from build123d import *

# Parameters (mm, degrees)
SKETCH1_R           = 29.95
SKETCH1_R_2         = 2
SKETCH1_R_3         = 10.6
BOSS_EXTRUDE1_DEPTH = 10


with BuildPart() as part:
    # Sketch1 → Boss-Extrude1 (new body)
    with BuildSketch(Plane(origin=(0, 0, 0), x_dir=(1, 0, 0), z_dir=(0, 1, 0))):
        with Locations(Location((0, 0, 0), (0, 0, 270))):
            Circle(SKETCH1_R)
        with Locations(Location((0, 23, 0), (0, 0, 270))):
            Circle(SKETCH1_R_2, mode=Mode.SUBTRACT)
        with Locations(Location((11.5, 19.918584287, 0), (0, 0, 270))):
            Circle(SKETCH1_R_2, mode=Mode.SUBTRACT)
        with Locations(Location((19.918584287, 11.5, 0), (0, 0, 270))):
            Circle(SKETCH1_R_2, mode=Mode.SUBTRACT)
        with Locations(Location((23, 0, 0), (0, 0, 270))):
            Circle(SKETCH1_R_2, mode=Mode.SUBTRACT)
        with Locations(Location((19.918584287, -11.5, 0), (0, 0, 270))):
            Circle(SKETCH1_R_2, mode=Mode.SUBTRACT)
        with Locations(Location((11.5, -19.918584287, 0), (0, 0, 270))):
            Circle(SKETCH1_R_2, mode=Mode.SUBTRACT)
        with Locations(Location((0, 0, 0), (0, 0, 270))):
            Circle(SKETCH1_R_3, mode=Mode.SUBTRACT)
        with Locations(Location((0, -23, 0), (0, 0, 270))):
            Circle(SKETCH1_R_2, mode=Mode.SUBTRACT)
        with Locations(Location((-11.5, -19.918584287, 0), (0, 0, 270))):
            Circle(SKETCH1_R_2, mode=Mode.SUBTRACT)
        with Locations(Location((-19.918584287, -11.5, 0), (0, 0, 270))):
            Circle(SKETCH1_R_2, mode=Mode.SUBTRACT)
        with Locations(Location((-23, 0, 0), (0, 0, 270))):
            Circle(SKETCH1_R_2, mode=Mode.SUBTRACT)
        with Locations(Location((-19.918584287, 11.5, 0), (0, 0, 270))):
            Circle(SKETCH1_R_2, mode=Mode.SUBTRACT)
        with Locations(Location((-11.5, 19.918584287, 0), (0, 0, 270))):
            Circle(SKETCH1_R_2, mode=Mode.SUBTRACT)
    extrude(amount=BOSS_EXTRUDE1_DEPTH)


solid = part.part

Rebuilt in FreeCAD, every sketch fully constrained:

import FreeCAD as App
import Part
import Sketcher

doc = App.newDocument("Part")
params = doc.addObject("Spreadsheet::Sheet", "Params")
for row, (alias, value) in enumerate([
    ("sketch1_diameter", "4 mm"),
    ("sketch1_diameter2", "59.9 mm"),
    ("sketch1_diameter3", "21.2 mm"),
    ("pad1_length", "10 mm"),
], start=1):
    params.set(f"A{row}", alias)
    params.set(f"B{row}", "=" + value)
    params.setAlias(f"B{row}", alias)

body = doc.addObject("PartDesign::Body", "Body")

# Sketch on XZ plane
sketch1 = doc.addObject("Sketcher::SketchObject", "Sketch")
body.addObject(sketch1)
sketch1.AttachmentSupport = (doc.XZ_Plane, [""])
sketch1.MapMode = "FlatFace"
sketch1.addGeometry([
    Part.Circle(App.Vector(0, 0, 0), App.Vector(0, 0, 1), 29.95),  # 0
    Part.Circle(App.Vector(-19.918584, -11.5, 0), App.Vector(0, 0, 1), 2),  # 1
    Part.Circle(App.Vector(-11.5, -19.918584, 0), App.Vector(0, 0, 1), 2),  # 2
    Part.Circle(App.Vector(0, -23, 0), App.Vector(0, 0, 1), 2),  # 3
    Part.Circle(App.Vector(-23, 0, 0), App.Vector(0, 0, 1), 2),  # 4
    Part.Circle(App.Vector(-19.918584, 11.5, 0), App.Vector(0, 0, 1), 2),  # 5
    Part.Circle(App.Vector(-11.5, 19.918584, 0), App.Vector(0, 0, 1), 2),  # 6
    Part.Circle(App.Vector(11.5, -19.918584, 0), App.Vector(0, 0, 1), 2),  # 7
    Part.Circle(App.Vector(19.918584, -11.5, 0), App.Vector(0, 0, 1), 2),  # 8
    Part.Circle(App.Vector(23, 0, 0), App.Vector(0, 0, 1), 2),  # 9
    Part.Circle(App.Vector(0, 0, 0), App.Vector(0, 0, 1), 10.6),  # 10
    Part.Circle(App.Vector(0, 23, 0), App.Vector(0, 0, 1), 2),  # 11
    Part.Circle(App.Vector(11.5, 19.918584, 0), App.Vector(0, 0, 1), 2),  # 12
    Part.Circle(App.Vector(19.918584, 11.5, 0), App.Vector(0, 0, 1), 2),  # 13
], False)
sketch1.addConstraint([
    Sketcher.Constraint("Coincident", 0, 3, -1, 1),
    Sketcher.Constraint("Coincident", 10, 3, -1, 1),
    Sketcher.Constraint("Equal", 1, 2),
    Sketcher.Constraint("Equal", 2, 3),
    Sketcher.Constraint("Equal", 3, 4),
    Sketcher.Constraint("Equal", 4, 5),
    Sketcher.Constraint("Equal", 5, 6),
    Sketcher.Constraint("Equal", 6, 7),
    Sketcher.Constraint("Equal", 7, 8),
    Sketcher.Constraint("Equal", 8, 9),
    Sketcher.Constraint("Equal", 9, 11),
    Sketcher.Constraint("Equal", 11, 12),
    Sketcher.Constraint("Equal", 12, 13),
    Sketcher.Constraint("Symmetric", 6, 3, 7, 3, -1, 1),
    Sketcher.Constraint("Symmetric", 5, 3, 8, 3, -1, 1),
    Sketcher.Constraint("Symmetric", 4, 3, 9, 3, -1, 1),
    Sketcher.Constraint("Symmetric", 3, 3, 11, 3, -1, 1),
    Sketcher.Constraint("Symmetric", 2, 3, 12, 3, -1, 1),
    Sketcher.Constraint("Symmetric", 1, 3, 13, 3, -1, 1),
    Sketcher.Constraint("Symmetric", 2, 3, 7, 3, -2),
    Sketcher.Constraint("Symmetric", 1, 3, 8, 3, -2),
    Sketcher.Constraint("PointOnObject", 3, 3, -2),
    Sketcher.Constraint("PointOnObject", 4, 3, -1),
    Sketcher.Constraint("Diameter", 1, 4.0),
    Sketcher.Constraint("Diameter", 0, 59.9),
    Sketcher.Constraint("Diameter", 10, 21.2),
    Sketcher.Constraint("DistanceY", 3, 3, -1, 1, 23.0),
    Sketcher.Constraint("DistanceX", 4, 3, -1, 1, 23.0),
    Sketcher.Constraint("DistanceY", 1, 3, 5, 3, 23.0),
    Sketcher.Constraint("DistanceX", 2, 3, 7, 3, 23.0),
    Sketcher.Constraint("DistanceY", 2, 3, 6, 3, 39.837169),
    Sketcher.Constraint("DistanceX", 1, 3, 8, 3, 39.837169),
])
sketch1.setExpression("Constraints[23]", "Params.sketch1_diameter")
sketch1.setExpression("Constraints[24]", "Params.sketch1_diameter2")
sketch1.setExpression("Constraints[25]", "Params.sketch1_diameter3")
pad1 = doc.addObject("PartDesign::Pad", "Pad")
body.addObject(pad1)
pad1.Profile = sketch1
pad1.setExpression("Length", "Params.pad1_length")
pad1.Reversed = True

doc.recompute()
